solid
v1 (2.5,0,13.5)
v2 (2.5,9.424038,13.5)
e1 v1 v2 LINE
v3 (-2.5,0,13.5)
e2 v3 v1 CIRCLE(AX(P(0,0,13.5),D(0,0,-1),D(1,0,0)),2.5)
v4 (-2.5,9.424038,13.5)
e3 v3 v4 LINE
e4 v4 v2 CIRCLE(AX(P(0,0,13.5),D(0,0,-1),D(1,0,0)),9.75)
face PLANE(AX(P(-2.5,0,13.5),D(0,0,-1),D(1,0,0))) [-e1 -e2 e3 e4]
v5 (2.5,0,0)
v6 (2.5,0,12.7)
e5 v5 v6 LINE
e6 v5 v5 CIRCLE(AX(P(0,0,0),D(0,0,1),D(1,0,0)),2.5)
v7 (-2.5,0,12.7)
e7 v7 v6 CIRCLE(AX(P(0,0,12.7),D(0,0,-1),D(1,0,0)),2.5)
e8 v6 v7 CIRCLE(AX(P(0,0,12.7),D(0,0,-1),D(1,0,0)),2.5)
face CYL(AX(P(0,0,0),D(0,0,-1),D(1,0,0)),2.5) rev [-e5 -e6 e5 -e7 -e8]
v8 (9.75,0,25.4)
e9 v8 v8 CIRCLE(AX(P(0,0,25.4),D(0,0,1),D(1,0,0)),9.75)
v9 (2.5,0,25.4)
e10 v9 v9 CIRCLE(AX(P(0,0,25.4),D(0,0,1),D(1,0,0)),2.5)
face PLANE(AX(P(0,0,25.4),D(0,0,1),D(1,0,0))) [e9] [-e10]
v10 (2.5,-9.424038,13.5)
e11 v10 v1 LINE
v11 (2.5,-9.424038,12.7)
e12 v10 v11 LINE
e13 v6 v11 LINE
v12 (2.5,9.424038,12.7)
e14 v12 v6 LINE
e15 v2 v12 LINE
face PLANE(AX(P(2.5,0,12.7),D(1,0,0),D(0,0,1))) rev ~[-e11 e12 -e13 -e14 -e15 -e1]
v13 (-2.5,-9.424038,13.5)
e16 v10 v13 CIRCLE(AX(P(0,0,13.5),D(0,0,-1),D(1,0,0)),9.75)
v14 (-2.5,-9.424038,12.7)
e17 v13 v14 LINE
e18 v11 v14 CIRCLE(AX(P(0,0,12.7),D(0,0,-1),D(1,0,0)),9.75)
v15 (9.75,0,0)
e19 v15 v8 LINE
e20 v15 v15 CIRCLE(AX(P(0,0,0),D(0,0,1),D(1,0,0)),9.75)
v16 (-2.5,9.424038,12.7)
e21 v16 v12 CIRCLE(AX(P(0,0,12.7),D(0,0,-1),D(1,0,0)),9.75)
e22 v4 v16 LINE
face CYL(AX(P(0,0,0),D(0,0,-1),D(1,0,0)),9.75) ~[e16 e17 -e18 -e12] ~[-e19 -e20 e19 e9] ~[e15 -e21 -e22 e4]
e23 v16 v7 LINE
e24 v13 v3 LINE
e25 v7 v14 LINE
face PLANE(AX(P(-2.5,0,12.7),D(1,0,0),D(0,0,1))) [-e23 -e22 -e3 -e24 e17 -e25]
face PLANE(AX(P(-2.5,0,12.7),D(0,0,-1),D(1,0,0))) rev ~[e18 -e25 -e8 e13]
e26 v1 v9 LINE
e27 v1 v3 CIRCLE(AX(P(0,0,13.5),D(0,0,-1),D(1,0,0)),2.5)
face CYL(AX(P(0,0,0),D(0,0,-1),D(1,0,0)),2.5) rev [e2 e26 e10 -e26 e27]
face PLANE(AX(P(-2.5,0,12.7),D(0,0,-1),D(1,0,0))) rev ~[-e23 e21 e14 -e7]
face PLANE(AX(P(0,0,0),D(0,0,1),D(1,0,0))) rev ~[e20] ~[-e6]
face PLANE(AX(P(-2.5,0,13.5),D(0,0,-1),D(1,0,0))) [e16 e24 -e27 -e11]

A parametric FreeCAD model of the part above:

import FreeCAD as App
import Part
import Sketcher
Q = App.Units.Quantity


def add_polygon(sketch, points):
    """Adds a closed chain of lines whose ends are joined by coincident constraints."""
    first, n = sketch.GeometryCount, len(points)
    for a, b in zip(points, points[1:] + points[:1]):
        sketch.addGeometry(Part.LineSegment(App.Vector(*a, 0), App.Vector(*b, 0)), False)
    for i in range(n):
        sketch.addConstraint(Sketcher.Constraint("Coincident", first + i, 2, first + (i + 1) % n, 1))

doc = App.newDocument("Part")
body = doc.addObject("PartDesign::Body", "Body")

# Sketch on XY plane
sketch1 = body.newObject("Sketcher::SketchObject", "Sketch")
sketch1.AttachmentSupport = (doc.getObject("XY_Plane"), [""])
sketch1.MapMode = "FlatFace"
sketch1.addGeometry(Part.Circle(App.Vector(0, 0, 0), App.Vector(0, 0, 1), 9.75), False)
sketch1.addGeometry(Part.Circle(App.Vector(0, 0, 0), App.Vector(0, 0, 1), 2.5), False)
sketch1.addConstraint(Sketcher.Constraint("Coincident", 0, 3, -1, 1))
sketch1.addConstraint(Sketcher.Constraint("Coincident", 1, 3, -1, 1))
sketch1.addConstraint(Sketcher.Constraint("Diameter", 1, Q("5 mm")))
sketch1.addConstraint(Sketcher.Constraint("Diameter", 0, Q("19.5 mm")))
pad1 = body.newObject("PartDesign::Pad", "Pad")
pad1.Profile = sketch1
pad1.Length = 25.4

# Sketch on XZ plane
sketch2 = body.newObject("Sketcher::SketchObject", "Sketch001")
sketch2.AttachmentSupport = (doc.getObject("XZ_Plane"), [""])
sketch2.MapMode = "FlatFace"
add_polygon(sketch2, [(-2.5, 13.5), (-2.5, 12.7), (2.5, 12.7), (2.5, 13.5)])  # lines 0-3
sketch2.addConstraint(Sketcher.Constraint("Vertical", 0))
sketch2.addConstraint(Sketcher.Constraint("Horizontal", 1))
sketch2.addConstraint(Sketcher.Constraint("Vertical", 2))
sketch2.addConstraint(Sketcher.Constraint("Horizontal", 3))
sketch2.addConstraint(Sketcher.Constraint("DistanceX", 1, 1, 1, 2, Q("5 mm")))
sketch2.addConstraint(Sketcher.Constraint("DistanceY", 0, 2, 0, 1, Q("0.8 mm")))
sketch2.addConstraint(Sketcher.Constraint("DistanceX", 0, 2, -1, 1, Q("2.5 mm")))
sketch2.addConstraint(Sketcher.Constraint("DistanceY", -1, 1, 0, 2, Q("12.7 mm")))
pocket1 = body.newObject("PartDesign::Pocket", "Pocket")
pocket1.Profile = sketch2
pocket1.Length = 25.4
pocket1.Midplane = True

doc.recompute()
